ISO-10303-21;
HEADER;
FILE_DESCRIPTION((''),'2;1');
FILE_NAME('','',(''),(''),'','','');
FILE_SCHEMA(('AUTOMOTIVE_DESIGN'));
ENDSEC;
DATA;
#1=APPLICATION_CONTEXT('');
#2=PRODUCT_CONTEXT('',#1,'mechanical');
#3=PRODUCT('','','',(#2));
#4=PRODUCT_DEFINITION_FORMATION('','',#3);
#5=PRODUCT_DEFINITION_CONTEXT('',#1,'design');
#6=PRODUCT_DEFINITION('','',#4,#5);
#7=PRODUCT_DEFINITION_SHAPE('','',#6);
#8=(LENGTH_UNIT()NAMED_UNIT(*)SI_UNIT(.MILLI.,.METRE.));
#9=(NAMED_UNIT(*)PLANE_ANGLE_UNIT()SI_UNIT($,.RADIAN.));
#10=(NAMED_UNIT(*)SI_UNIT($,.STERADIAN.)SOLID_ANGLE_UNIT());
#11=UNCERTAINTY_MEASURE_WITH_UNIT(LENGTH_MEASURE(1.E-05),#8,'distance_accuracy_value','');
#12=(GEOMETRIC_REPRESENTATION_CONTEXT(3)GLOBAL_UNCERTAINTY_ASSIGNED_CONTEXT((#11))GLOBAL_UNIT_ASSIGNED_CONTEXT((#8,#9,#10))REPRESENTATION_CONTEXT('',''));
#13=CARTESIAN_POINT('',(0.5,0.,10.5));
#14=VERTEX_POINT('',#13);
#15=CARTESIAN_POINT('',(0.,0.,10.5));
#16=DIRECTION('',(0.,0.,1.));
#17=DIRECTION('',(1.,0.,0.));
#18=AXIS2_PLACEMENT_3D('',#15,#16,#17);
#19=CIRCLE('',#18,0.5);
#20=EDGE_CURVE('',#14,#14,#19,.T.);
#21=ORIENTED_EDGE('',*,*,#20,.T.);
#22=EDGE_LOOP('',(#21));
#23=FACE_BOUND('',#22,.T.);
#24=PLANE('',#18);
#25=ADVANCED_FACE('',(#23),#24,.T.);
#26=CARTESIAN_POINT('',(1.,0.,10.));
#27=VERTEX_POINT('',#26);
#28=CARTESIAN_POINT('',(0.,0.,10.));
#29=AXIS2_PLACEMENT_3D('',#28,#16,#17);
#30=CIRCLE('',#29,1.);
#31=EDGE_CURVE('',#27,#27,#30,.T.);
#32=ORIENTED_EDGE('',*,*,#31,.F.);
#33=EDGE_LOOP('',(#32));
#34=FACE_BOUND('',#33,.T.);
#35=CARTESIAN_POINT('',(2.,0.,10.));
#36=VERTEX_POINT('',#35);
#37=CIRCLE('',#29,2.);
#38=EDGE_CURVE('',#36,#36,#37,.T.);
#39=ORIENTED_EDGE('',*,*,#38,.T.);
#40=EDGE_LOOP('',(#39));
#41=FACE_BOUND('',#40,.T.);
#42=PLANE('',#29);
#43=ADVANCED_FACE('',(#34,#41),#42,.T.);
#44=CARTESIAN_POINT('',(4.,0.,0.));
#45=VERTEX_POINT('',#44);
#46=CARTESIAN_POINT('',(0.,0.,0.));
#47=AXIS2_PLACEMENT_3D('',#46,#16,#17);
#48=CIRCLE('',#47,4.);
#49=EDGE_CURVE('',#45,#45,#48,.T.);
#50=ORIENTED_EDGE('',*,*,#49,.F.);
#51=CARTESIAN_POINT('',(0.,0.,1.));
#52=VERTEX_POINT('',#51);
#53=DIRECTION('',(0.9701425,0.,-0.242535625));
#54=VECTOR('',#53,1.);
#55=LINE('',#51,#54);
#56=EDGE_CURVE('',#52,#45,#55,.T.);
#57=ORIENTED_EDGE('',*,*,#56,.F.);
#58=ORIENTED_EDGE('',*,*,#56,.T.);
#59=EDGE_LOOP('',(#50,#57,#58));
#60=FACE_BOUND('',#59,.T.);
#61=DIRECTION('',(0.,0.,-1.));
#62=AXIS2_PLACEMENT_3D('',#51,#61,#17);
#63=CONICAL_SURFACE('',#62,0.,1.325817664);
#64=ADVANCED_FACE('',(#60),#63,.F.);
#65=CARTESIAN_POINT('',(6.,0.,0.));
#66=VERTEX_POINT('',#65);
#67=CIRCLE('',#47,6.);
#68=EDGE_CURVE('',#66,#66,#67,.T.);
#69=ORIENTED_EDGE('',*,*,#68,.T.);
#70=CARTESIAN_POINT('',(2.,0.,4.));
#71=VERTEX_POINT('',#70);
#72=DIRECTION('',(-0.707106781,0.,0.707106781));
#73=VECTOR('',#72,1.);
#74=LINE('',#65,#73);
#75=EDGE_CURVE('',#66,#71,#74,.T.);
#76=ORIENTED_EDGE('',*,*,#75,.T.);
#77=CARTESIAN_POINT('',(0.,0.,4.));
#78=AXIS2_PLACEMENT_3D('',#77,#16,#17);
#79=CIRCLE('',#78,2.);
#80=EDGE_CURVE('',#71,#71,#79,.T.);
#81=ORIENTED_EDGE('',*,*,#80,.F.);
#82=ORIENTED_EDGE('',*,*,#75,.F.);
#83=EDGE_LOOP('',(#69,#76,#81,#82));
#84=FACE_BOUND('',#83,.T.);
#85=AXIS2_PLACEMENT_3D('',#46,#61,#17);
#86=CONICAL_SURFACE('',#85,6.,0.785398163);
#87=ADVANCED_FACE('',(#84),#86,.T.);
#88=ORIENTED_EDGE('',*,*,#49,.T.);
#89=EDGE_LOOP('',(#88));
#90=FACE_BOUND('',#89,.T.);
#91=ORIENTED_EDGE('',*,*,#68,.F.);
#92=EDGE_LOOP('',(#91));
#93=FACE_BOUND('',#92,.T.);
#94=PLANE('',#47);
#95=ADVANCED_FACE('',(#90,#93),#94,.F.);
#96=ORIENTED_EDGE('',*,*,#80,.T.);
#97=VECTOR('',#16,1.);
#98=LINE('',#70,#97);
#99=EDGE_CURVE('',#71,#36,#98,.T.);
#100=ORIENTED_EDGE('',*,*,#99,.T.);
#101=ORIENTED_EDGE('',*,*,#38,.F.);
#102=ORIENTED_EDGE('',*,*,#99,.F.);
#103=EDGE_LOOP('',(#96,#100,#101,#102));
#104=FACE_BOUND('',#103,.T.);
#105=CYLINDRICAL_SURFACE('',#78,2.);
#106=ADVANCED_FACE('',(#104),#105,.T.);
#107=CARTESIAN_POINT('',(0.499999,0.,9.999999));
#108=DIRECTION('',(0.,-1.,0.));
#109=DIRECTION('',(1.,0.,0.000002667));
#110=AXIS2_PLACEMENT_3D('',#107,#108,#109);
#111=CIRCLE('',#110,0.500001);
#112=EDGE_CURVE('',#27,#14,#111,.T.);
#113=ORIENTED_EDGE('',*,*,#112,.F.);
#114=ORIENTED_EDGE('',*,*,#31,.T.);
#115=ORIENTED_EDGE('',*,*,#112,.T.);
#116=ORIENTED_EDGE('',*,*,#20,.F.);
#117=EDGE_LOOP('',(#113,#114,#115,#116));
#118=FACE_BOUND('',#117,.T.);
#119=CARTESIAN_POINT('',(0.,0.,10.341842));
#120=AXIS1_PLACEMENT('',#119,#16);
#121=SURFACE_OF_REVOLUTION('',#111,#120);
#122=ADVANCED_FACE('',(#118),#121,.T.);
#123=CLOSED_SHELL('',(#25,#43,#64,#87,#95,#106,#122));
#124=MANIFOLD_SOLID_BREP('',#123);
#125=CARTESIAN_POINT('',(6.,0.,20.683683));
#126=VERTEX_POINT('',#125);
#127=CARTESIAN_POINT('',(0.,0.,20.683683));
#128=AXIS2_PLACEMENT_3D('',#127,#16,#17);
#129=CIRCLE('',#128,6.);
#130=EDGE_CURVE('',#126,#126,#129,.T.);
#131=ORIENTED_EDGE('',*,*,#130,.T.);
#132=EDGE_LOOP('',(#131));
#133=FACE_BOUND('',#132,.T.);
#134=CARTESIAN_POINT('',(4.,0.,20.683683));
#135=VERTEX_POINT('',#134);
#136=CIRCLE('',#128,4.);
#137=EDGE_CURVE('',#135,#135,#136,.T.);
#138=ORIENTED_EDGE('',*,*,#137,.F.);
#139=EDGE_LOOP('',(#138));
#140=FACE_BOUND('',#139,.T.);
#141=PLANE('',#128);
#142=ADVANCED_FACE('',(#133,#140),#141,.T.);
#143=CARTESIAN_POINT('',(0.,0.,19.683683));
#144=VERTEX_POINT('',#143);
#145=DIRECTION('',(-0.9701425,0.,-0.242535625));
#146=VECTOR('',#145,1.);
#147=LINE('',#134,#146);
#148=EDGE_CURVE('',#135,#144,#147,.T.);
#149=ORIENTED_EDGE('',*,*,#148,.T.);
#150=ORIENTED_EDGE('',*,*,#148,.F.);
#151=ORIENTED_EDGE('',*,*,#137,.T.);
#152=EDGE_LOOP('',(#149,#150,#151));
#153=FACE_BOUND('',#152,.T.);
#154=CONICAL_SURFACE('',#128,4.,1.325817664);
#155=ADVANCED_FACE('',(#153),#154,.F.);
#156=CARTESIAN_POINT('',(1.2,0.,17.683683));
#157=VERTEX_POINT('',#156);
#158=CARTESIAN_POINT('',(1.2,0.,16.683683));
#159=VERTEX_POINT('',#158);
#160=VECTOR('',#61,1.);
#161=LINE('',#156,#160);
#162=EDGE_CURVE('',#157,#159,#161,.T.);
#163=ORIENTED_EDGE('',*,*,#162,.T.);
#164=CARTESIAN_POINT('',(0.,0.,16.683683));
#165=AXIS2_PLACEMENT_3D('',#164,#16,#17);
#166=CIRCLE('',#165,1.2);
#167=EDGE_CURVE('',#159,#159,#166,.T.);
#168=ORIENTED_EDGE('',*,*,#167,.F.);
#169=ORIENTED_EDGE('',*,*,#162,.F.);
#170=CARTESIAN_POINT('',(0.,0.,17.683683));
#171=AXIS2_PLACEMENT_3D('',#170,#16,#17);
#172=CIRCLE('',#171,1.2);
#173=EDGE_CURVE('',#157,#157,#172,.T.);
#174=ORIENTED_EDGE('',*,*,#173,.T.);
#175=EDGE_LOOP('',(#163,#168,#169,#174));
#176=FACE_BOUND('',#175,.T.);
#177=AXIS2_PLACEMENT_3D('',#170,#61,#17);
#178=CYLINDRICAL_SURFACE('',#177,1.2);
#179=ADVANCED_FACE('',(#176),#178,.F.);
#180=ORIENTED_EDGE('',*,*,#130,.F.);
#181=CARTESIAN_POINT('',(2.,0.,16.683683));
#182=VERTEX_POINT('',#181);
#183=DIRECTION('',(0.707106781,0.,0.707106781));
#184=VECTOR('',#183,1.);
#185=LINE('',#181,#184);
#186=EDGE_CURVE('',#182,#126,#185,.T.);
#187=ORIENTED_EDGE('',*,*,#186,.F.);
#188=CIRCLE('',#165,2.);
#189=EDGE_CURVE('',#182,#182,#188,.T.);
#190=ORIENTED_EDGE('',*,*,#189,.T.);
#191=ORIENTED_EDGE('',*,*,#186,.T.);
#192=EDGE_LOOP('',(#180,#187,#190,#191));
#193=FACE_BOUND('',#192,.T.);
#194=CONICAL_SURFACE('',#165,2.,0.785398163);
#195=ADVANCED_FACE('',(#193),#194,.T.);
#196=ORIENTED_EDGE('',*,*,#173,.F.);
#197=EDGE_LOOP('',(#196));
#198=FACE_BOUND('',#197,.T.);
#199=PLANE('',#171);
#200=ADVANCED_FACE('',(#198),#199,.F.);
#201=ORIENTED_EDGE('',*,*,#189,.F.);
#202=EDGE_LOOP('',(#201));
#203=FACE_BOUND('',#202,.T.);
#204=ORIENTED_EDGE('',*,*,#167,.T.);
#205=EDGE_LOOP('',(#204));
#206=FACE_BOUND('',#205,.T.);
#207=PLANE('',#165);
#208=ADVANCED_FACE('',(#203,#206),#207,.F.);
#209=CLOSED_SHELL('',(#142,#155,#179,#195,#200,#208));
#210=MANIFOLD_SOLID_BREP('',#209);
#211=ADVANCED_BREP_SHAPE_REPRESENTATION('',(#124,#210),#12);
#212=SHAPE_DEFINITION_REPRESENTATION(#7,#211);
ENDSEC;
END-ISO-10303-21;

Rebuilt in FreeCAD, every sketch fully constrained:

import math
import FreeCAD as App
import Part
import Sketcher
Q = App.Units.Quantity


def add_polygon(sketch, points):
    """Adds a closed chain of lines whose ends are joined by coincident constraints."""
    first, n = sketch.GeometryCount, len(points)
    for a, b in zip(points, points[1:] + points[:1]):
        sketch.addGeometry(Part.LineSegment(App.Vector(*a, 0), App.Vector(*b, 0)), False)
    for i in range(n):
        sketch.addConstraint(Sketcher.Constraint("Coincident", first + i, 2, first + (i + 1) % n, 1))

doc = App.newDocument("Part")
body = doc.addObject("PartDesign::Body", "Body")
body.AllowCompound = True

# Sketch on XZ plane
sketch1 = body.newObject("Sketcher::SketchObject", "Sketch")
sketch1.AttachmentSupport = (doc.getObject("XZ_Plane"), [""])
sketch1.MapMode = "FlatFace"
sketch1.addGeometry(Part.LineSegment(App.Vector(0, 1, 0), App.Vector(4, 0, 0)), False)  # 0
sketch1.addGeometry(Part.LineSegment(App.Vector(4, 0, 0), App.Vector(6, 0, 0)), False)  # 1
sketch1.addGeometry(Part.LineSegment(App.Vector(6, 0, 0), App.Vector(2, 4, 0)), False)  # 2
sketch1.addGeometry(Part.LineSegment(App.Vector(2, 4, 0), App.Vector(2, 10, 0)), False)  # 3
sketch1.addGeometry(Part.LineSegment(App.Vector(2, 10, 0), App.Vector(1, 10, 0)), False)  # 4
sketch1.addGeometry(Part.ArcOfCircle(Part.Circle(App.Vector(0.5, 10, 0), App.Vector(0, 0, 1), 0.5), math.radians(0), math.radians(90)), False)  # 5
sketch1.addGeometry(Part.LineSegment(App.Vector(0.5, 10.5, 0), App.Vector(0, 10.5, 0)), False)  # 6
sketch1.addGeometry(Part.LineSegment(App.Vector(0, 10.5, 0), App.Vector(0, 1, 0)), False)  # 7
add_polygon(sketch1, [(1.2, 17.7), (1.2, 16.7), (2, 16.7), (6, 20.7), (4, 20.7), (0, 19.7), (0, 17.7)])  # lines 8-14
sketch1.addConstraint([
    Sketcher.Constraint("Coincident", 0, 2, 1, 1),
    Sketcher.Constraint("Coincident", 1, 2, 2, 1),
    Sketcher.Constraint("Coincident", 2, 2, 3, 1),
    Sketcher.Constraint("Coincident", 3, 2, 4, 1),
    Sketcher.Constraint("Coincident", 4, 2, 5, 1),
    Sketcher.Constraint("Coincident", 5, 2, 6, 1),
    Sketcher.Constraint("Coincident", 6, 2, 7, 1),
    Sketcher.Constraint("Coincident", 7, 2, 0, 1),
    Sketcher.Constraint("Horizontal", 1),
    Sketcher.Constraint("Vertical", 3),
    Sketcher.Constraint("Horizontal", 4),
    Sketcher.Constraint("Horizontal", 6),
    Sketcher.Constraint("Vertical", 7),
    Sketcher.Constraint("Vertical", 8),
    Sketcher.Constraint("Horizontal", 9),
    Sketcher.Constraint("Horizontal", 11),
    Sketcher.Constraint("Vertical", 13),
    Sketcher.Constraint("Horizontal", 14),
    Sketcher.Constraint("PointOnObject", 0, 2, -1),
    Sketcher.Constraint("PointOnObject", 6, 2, -2),
    Sketcher.Constraint("PointOnObject", 12, 2, -2),
    Sketcher.Constraint("Perpendicular", 2, 10),
    Sketcher.Constraint("Horizontal", 5, 3, 3, 2),
    Sketcher.Constraint("Vertical", 3, 2, 9, 2),
    Sketcher.Constraint("Vertical", 1, 2, 10, 2),
    Sketcher.Constraint("Vertical", 0, 2, 11, 2),
    Sketcher.Constraint("Equal", 4, 8),
    Sketcher.Constraint("Equal", 11, 13),
    Sketcher.Constraint("Equal", 2, 10),
    Sketcher.Constraint("Equal", 0, 12),
    Sketcher.Constraint("Radius", 5, Q("0.500001 mm")),
    Sketcher.Constraint("DistanceX", 1, 1, 1, 2, Q("2 mm")),
    Sketcher.Constraint("DistanceX", 4, 2, 4, 1, Q("1 mm")),
    Sketcher.Constraint("DistanceY", 3, 1, 3, 2, Q("6 mm")),
    Sketcher.Constraint("DistanceX", 6, 2, 6, 1, Q("0.5 mm")),
    Sketcher.Constraint("DistanceX", 9, 1, 9, 2, Q("0.8 mm")),
    Sketcher.Constraint("DistanceX", 14, 1, 14, 2, Q("1.2 mm")),
    Sketcher.Constraint("DistanceY", -1, 1, 5, 3, Q("9.999999 mm")),
    Sketcher.Constraint("DistanceY", -1, 1, 8, 2, Q("16.683683 mm")),
])
revolution = body.newObject("PartDesign::Revolution", "Revolution")
revolution.Profile = sketch1
revolution.ReferenceAxis = (sketch1, ["V_Axis"])
revolution.Angle = 360

doc.recompute()
